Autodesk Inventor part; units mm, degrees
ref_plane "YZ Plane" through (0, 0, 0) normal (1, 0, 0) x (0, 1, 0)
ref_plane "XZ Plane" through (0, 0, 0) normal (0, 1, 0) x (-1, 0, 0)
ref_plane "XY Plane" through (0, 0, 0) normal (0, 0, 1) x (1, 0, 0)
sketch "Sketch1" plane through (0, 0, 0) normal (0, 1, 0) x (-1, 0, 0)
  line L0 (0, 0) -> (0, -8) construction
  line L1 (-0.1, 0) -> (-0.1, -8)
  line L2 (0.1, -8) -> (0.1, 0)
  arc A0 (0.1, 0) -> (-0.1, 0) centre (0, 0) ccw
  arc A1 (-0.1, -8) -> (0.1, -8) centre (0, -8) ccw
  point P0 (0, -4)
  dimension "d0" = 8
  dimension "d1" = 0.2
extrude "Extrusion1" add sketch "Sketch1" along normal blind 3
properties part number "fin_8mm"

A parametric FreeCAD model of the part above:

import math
import FreeCAD as App
import Part
import Sketcher

doc = App.newDocument("Part")
params = doc.addObject("Spreadsheet::Sheet", "Params")
for row, (alias, value) in enumerate([
    ("sketch1_radius", "0.1 mm"),
    ("sketch1_height", "8 mm"),
    ("pad1_length", "3 mm"),
], start=1):
    params.set(f"A{row}", alias)
    params.set(f"B{row}", "=" + value)
    params.setAlias(f"B{row}", alias)

body = doc.addObject("PartDesign::Body", "Body")

sketch1 = body.newObject("Sketcher::SketchObject", "Sketch")
sketch1.AttachmentSupport = (doc.getObject("XZ_Plane"), [""])
sketch1.MapMode = "FlatFace"
sketch1.addGeometry(Part.ArcOfCircle(Part.Circle(App.Vector(0, 0, 0), App.Vector(0, 0, 1), 0.1), math.radians(0), math.radians(180)), False)
sketch1.addGeometry(Part.LineSegment(App.Vector(0.1, 0, 0), App.Vector(0.1, -8, 0)), False)
sketch1.addGeometry(Part.ArcOfCircle(Part.Circle(App.Vector(0, -8, 0), App.Vector(0, 0, 1), 0.1), math.radians(180), math.radians(360)), False)
sketch1.addGeometry(Part.LineSegment(App.Vector(-0.1, -8, 0), App.Vector(-0.1, 0, 0)), False)
sketch1.addConstraint(Sketcher.Constraint("Tangent", 0, 1, 1, 1))
sketch1.addConstraint(Sketcher.Constraint("Tangent", 1, 2, 2, 2))
sketch1.addConstraint(Sketcher.Constraint("Tangent", 2, 1, 3, 1))
sketch1.addConstraint(Sketcher.Constraint("Tangent", 3, 2, 0, 2))
sketch1.addConstraint(Sketcher.Constraint("Vertical", 1))
sketch1.addConstraint(Sketcher.Constraint("Vertical", 3))
sketch1.addConstraint(Sketcher.Constraint("Coincident", 0, 3, -1, 1))
sketch1.addConstraint(Sketcher.Constraint("Radius", 0, 0.1))
sketch1.addConstraint(Sketcher.Constraint("DistanceY", 1, 2, 1, 1, 8.0))
sketch1.setExpression("Constraints[7]", "Params.sketch1_radius")
sketch1.setExpression("Constraints[8]", "Params.sketch1_height")
pad1 = body.newObject("PartDesign::Pad", "Pad")
pad1.Profile = sketch1
pad1.setExpression("Length", "Params.pad1_length")
pad1.Reversed = True

doc.recompute()
